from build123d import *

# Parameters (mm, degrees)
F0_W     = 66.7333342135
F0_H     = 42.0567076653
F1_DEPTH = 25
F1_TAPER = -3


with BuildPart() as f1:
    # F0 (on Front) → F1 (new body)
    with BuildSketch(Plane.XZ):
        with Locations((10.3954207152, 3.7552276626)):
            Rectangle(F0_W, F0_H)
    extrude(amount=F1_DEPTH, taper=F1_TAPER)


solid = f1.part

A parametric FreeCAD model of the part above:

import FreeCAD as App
import Part
import Sketcher

doc = App.newDocument("Part")
body = doc.addObject("PartDesign::Body", "Body")

# Sketch on XZ plane
sketch1 = body.newObject("Sketcher::SketchObject", "Sketch")
sketch1.AttachmentSupport = (doc.getObject("XZ_Plane"), [""])
sketch1.MapMode = "FlatFace"
sketch1.addGeometry([
    Part.LineSegment(App.Vector(-23, 25, 0), App.Vector(-23, -17, 0)),
    Part.LineSegment(App.Vector(-23, -17, 0), App.Vector(44, -17, 0)),
    Part.LineSegment(App.Vector(44, -17, 0), App.Vector(44, 25, 0)),
    Part.LineSegment(App.Vector(44, 25, 0), App.Vector(-23, 25, 0)),
], False)
sketch1.addConstraint([
    Sketcher.Constraint("Coincident", 0, 2, 1, 1),
    Sketcher.Constraint("Coincident", 1, 2, 2, 1),
    Sketcher.Constraint("Coincident", 2, 2, 3, 1),
    Sketcher.Constraint("Coincident", 3, 2, 0, 1),
    Sketcher.Constraint("Vertical", 0),
    Sketcher.Constraint("Horizontal", 1),
    Sketcher.Constraint("Vertical", 2),
    Sketcher.Constraint("Horizontal", 3),
    Sketcher.Constraint("DistanceX", 1, 1, 1, 2, 66.733334),
    Sketcher.Constraint("DistanceY", 0, 2, 0, 1, 42.056708),
    Sketcher.Constraint("DistanceY", -1, 1, 2, 2, 24.783581),
    Sketcher.Constraint("DistanceX", 0, 2, -1, 1, 22.971246),
])
pad1 = body.newObject("PartDesign::Pad", "Pad")
pad1.Profile = sketch1
pad1.Length = 25
pad1.TaperAngle = 3

doc.recompute()
